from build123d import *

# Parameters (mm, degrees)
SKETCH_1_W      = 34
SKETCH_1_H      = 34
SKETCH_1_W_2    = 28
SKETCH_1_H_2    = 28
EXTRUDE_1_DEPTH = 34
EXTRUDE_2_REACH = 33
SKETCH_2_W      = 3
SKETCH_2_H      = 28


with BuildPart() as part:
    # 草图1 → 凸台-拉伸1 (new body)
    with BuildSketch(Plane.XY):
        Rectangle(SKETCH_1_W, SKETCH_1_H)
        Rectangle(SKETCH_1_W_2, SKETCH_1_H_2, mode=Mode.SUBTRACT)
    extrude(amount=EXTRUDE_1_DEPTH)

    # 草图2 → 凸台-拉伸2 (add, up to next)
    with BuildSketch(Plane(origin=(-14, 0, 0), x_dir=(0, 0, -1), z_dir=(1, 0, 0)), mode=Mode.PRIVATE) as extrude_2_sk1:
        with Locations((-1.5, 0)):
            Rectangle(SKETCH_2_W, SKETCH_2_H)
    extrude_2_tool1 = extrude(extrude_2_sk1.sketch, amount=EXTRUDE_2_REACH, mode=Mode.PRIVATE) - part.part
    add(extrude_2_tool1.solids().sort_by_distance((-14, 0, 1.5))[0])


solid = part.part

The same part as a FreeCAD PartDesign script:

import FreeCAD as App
import Part
import Sketcher
from FreeCAD import Vector


def add_polygon(sketch, points):
    """Adds a closed chain of lines whose ends are joined by coincident constraints."""
    first, n = sketch.GeometryCount, len(points)
    for a, b in zip(points, points[1:] + points[:1]):
        sketch.addGeometry(Part.LineSegment(App.Vector(*a, 0), App.Vector(*b, 0)), False)
    for i in range(n):
        sketch.addConstraint(Sketcher.Constraint("Coincident", first + i, 2, first + (i + 1) % n, 1))

doc = App.newDocument("Part")
params = doc.addObject("Spreadsheet::Sheet", "Params")
for row, (alias, value) in enumerate([
    ("sketch1_width", "34 mm"),
    ("sketch1_width2", "28 mm"),
    ("pad1_length", "34 mm"),
    ("sketch2_width", "28 mm"),
    ("sketch2_height", "3 mm"),
], start=1):
    params.set(f"A{row}", alias)
    params.set(f"B{row}", "=" + value)
    params.setAlias(f"B{row}", alias)

body = doc.addObject("PartDesign::Body", "Body")

# Sketch on XY plane
sketch1 = doc.addObject("Sketcher::SketchObject", "Sketch")
body.addObject(sketch1)
sketch1.AttachmentSupport = (doc.XY_Plane, [""])
sketch1.MapMode = "FlatFace"
add_polygon(sketch1, [(-17, 17), (-17, -17), (17, -17), (17, 17)])  # lines 0-3
add_polygon(sketch1, [(14, -14), (-14, -14), (-14, 14), (14, 14)])  # lines 4-7
sketch1.addConstraint(Sketcher.Constraint("Vertical", 0))
sketch1.addConstraint(Sketcher.Constraint("Horizontal", 1))
sketch1.addConstraint(Sketcher.Constraint("Vertical", 2))
sketch1.addConstraint(Sketcher.Constraint("Horizontal", 3))
sketch1.addConstraint(Sketcher.Constraint("Horizontal", 4))
sketch1.addConstraint(Sketcher.Constraint("Vertical", 5))
sketch1.addConstraint(Sketcher.Constraint("Horizontal", 6))
sketch1.addConstraint(Sketcher.Constraint("Vertical", 7))
sketch1.addConstraint(Sketcher.Constraint("Symmetric", 0, 2, 2, 2, -1, 1))
sketch1.addConstraint(Sketcher.Constraint("Symmetric", 4, 2, 6, 2, -1, 1))
sketch1.addConstraint(Sketcher.Constraint("Equal", 3, 0))
sketch1.addConstraint(Sketcher.Constraint("Equal", 6, 5))
sketch1.addConstraint(Sketcher.Constraint("DistanceX", 1, 1, 1, 2, 34.0))
sketch1.addConstraint(Sketcher.Constraint("DistanceX", 4, 2, 4, 1, 28.0))
sketch1.setExpression("Constraints[20]", "Params.sketch1_width")
sketch1.setExpression("Constraints[21]", "Params.sketch1_width2")
pad1 = doc.addObject("PartDesign::Pad", "Pad")
body.addObject(pad1)
pad1.Profile = sketch1
pad1.setExpression("Length", "Params.pad1_length")

# Sketch on YZ plane
sketch2 = doc.addObject("Sketcher::SketchObject", "Sketch001")
body.addObject(sketch2)
sketch2.AttachmentSupport = (doc.YZ_Plane, [""])
sketch2.MapMode = "FlatFace"
sketch2.AttachmentOffset = App.Placement(Vector(0, 0, -14), App.Rotation())
add_polygon(sketch2, [(14, 3), (-14, 3), (-14, 0), (14, 0)])  # lines 0-3
sketch2.addConstraint(Sketcher.Constraint("Horizontal", 0))
sketch2.addConstraint(Sketcher.Constraint("Vertical", 1))
sketch2.addConstraint(Sketcher.Constraint("Horizontal", 2))
sketch2.addConstraint(Sketcher.Constraint("Vertical", 3))
sketch2.addConstraint(Sketcher.Constraint("Symmetric", 1, 2, 2, 2, -1, 1))
sketch2.addConstraint(Sketcher.Constraint("DistanceX", 0, 2, 0, 1, 28.0))
sketch2.addConstraint(Sketcher.Constraint("DistanceY", 1, 2, 1, 1, 3.0))
sketch2.setExpression("Constraints[9]", "Params.sketch2_width")
sketch2.setExpression("Constraints[10]", "Params.sketch2_height")
pad2 = doc.addObject("PartDesign::Pad", "Pad001")
body.addObject(pad2)
pad2.Profile = sketch2
pad2.Type = "UpToFirst"

doc.recompute()
